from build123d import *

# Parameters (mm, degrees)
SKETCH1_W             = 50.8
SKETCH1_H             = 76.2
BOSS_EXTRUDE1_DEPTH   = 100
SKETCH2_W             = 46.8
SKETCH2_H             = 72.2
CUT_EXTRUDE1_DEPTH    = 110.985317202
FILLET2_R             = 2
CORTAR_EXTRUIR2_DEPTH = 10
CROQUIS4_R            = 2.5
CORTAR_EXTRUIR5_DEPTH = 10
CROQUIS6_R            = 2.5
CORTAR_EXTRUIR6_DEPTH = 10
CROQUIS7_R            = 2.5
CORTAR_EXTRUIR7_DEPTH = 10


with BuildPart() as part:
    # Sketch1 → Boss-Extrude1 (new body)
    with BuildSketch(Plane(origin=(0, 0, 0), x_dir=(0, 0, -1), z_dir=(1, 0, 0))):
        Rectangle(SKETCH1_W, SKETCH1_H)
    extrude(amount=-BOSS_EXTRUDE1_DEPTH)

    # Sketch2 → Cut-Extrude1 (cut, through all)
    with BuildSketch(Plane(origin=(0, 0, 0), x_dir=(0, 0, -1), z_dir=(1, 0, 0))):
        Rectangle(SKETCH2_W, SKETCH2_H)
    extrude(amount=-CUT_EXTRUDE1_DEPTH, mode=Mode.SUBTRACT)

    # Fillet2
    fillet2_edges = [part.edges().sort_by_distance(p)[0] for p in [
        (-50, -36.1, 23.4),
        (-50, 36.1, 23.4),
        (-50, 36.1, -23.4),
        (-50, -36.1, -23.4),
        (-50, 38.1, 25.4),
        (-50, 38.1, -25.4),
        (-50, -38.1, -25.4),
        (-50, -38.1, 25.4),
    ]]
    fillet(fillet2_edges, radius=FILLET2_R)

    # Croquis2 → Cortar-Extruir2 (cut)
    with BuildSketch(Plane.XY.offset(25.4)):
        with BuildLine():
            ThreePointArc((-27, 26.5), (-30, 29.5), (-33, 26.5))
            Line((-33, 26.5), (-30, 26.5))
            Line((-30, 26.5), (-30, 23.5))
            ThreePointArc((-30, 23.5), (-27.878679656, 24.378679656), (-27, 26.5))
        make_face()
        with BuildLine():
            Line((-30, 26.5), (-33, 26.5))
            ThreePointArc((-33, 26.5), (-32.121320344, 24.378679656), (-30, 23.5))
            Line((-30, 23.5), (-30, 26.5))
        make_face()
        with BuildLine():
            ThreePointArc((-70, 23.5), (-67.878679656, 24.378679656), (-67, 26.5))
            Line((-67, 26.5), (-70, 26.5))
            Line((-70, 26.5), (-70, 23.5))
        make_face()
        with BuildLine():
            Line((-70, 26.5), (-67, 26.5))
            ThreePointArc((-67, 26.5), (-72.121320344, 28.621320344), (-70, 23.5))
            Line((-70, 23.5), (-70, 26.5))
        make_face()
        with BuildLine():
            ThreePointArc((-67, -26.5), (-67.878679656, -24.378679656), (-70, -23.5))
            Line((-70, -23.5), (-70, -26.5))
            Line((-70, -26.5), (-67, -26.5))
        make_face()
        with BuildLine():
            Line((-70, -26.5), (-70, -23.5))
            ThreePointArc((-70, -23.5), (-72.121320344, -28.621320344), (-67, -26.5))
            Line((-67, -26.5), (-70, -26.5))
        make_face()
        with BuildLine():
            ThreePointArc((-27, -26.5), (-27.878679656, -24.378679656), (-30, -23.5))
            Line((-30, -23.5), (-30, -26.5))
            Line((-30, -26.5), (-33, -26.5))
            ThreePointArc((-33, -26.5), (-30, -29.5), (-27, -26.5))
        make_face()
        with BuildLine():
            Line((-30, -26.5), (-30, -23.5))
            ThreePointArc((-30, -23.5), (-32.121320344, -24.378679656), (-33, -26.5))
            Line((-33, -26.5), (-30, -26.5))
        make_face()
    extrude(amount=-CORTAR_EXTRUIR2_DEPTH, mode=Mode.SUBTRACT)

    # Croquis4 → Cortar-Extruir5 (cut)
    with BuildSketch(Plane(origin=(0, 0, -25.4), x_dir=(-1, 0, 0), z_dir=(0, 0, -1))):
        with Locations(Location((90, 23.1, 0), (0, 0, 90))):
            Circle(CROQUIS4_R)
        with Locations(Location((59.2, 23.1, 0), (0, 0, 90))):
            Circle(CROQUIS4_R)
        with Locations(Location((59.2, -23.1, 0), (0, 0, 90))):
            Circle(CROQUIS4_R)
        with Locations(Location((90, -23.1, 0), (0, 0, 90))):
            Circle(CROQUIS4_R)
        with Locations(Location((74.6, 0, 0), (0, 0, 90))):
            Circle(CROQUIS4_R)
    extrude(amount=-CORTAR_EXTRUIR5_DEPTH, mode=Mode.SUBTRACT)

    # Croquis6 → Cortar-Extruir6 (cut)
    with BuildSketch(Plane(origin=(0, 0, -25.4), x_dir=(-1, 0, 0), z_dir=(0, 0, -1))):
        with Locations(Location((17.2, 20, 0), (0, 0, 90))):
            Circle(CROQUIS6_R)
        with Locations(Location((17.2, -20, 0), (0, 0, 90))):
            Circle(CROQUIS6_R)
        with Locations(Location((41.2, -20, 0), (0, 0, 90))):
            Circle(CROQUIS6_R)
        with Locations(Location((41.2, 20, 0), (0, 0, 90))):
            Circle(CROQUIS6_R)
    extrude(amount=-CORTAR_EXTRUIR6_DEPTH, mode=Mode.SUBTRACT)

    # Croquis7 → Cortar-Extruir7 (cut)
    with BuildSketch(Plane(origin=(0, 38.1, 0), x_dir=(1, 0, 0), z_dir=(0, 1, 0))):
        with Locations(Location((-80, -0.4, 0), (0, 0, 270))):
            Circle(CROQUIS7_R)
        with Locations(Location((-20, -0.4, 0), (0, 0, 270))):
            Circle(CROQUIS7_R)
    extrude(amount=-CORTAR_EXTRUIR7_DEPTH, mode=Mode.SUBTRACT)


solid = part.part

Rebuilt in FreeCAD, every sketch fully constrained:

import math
import FreeCAD as App
import Part
import Sketcher

V = App.Vector
Q = App.Units.Quantity


def edges_at(feature, points):
    """Names of the edges that pass closest to the given points."""
    edges = feature.Shape.Edges
    near = lambda p: min(range(len(edges)), key=lambda i: edges[i].distToShape(Part.Vertex(*p))[0])
    return sorted({f"Edge{near(p) + 1}" for p in points})

doc = App.newDocument("Part")
params = doc.addObject("Spreadsheet::Sheet", "Params")
for row, (alias, value) in enumerate([
    ("sketch1_width", "76.2 mm"),
    ("sketch1_height", "50.8 mm"),
    ("pad1_length", "100 mm"),
    ("sketch2_width", "72.2 mm"),
    ("sketch2_height", "46.8 mm"),
    ("fillet_radius", "2 mm"),
    ("sketch3_radius", "3 mm"),
    ("pocket2_length", "10 mm"),
    ("sketch4_diameter", "5 mm"),
    ("pocket3_length", "10 mm"),
    ("sketch5_diameter", "5 mm"),
    ("pocket4_length", "10 mm"),
    ("sketch6_diameter", "5 mm"),
    ("pocket5_length", "10 mm"),
], start=1):
    params.set(f"A{row}", alias)
    params.set(f"B{row}", "=" + value)
    params.setAlias(f"B{row}", alias)

body = doc.addObject("PartDesign::Body", "Body")

# Sketch on YZ plane
sketch1 = body.newObject("Sketcher::SketchObject", "Sketch")
sketch1.AttachmentSupport = (doc.getObject("YZ_Plane"), [""])
sketch1.MapMode = "FlatFace"
sketch1.addGeometry([
    Part.LineSegment(V(38, 25, 0), V(-38, 25, 0)),
    Part.LineSegment(V(-38, 25, 0), V(-38, -25, 0)),
    Part.LineSegment(V(-38, -25, 0), V(38, -25, 0)),
    Part.LineSegment(V(38, -25, 0), V(38, 25, 0)),
], False)
sketch1.addConstraint([
    Sketcher.Constraint("Coincident", 0, 2, 1, 1),
    Sketcher.Constraint("Coincident", 1, 2, 2, 1),
    Sketcher.Constraint("Coincident", 2, 2, 3, 1),
    Sketcher.Constraint("Coincident", 3, 2, 0, 1),
    Sketcher.Constraint("Horizontal", 0),
    Sketcher.Constraint("Vertical", 1),
    Sketcher.Constraint("Horizontal", 2),
    Sketcher.Constraint("Vertical", 3),
    Sketcher.Constraint("Symmetric", 0, 2, 2, 2, -1, 1),
    Sketcher.Constraint("DistanceX", 0, 2, 0, 1, Q("76.2 mm")),
    Sketcher.Constraint("DistanceY", 1, 2, 1, 1, Q("50.8 mm")),
])
sketch1.setExpression("Constraints[9]", "Params.sketch1_width")
sketch1.setExpression("Constraints[10]", "Params.sketch1_height")
pad1 = body.newObject("PartDesign::Pad", "Pad")
pad1.Profile = sketch1
pad1.setExpression("Length", "Params.pad1_length")
pad1.Reversed = True

# Sketch on YZ plane
sketch2 = body.newObject("Sketcher::SketchObject", "Sketch001")
sketch2.AttachmentSupport = (doc.getObject("YZ_Plane"), [""])
sketch2.MapMode = "FlatFace"
sketch2.addGeometry([
    Part.LineSegment(V(36, 23, 0), V(-36, 23, 0)),
    Part.LineSegment(V(-36, 23, 0), V(-36, -23, 0)),
    Part.LineSegment(V(-36, -23, 0), V(36, -23, 0)),
    Part.LineSegment(V(36, -23, 0), V(36, 23, 0)),
], False)
sketch2.addConstraint([
    Sketcher.Constraint("Coincident", 0, 2, 1, 1),
    Sketcher.Constraint("Coincident", 1, 2, 2, 1),
    Sketcher.Constraint("Coincident", 2, 2, 3, 1),
    Sketcher.Constraint("Coincident", 3, 2, 0, 1),
    Sketcher.Constraint("Horizontal", 0),
    Sketcher.Constraint("Vertical", 1),
    Sketcher.Constraint("Horizontal", 2),
    Sketcher.Constraint("Vertical", 3),
    Sketcher.Constraint("Symmetric", 0, 2, 2, 2, -1, 1),
    Sketcher.Constraint("DistanceX", 0, 2, 0, 1, Q("72.2 mm")),
    Sketcher.Constraint("DistanceY", 1, 2, 1, 1, Q("46.8 mm")),
])
sketch2.setExpression("Constraints[9]", "Params.sketch2_width")
sketch2.setExpression("Constraints[10]", "Params.sketch2_height")
pocket1 = body.newObject("PartDesign::Pocket", "Pocket")
pocket1.Profile = sketch2
pocket1.Type = "ThroughAll"
doc.recompute()

fillet = body.newObject("PartDesign::Fillet", "Fillet")
fillet.Base = (pocket1, edges_at(pocket1, [
    (-50, -36.1, 23.4),
    (-50, 36.1, 23.4),
    (-50, 36.1, -23.4),
    (-50, -36.1, -23.4),
    (-50, 38.1, 25.4),
    (-50, 38.1, -25.4),
    (-50, -38.1, -25.4),
    (-50, -38.1, 25.4),
]))
fillet.setExpression("Radius", "Params.fillet_radius")

# Sketch on XY plane
sketch3 = body.newObject("Sketcher::SketchObject", "Sketch002")
sketch3.AttachmentSupport = (doc.getObject("XY_Plane"), [""])
sketch3.MapMode = "FlatFace"
sketch3.AttachmentOffset = App.Placement(V(0, 0, 25.4), App.Rotation())
sketch3.addGeometry([
    Part.ArcOfCircle(Part.Circle(V(-30, 26.5, 0), V(0, 0, 1), 3), math.radians(0), math.radians(180)),  # 0
    Part.ArcOfCircle(Part.Circle(V(-30, 26.5, 0), V(0, 0, 1), 3), math.radians(180), math.radians(270)),  # 1
    Part.ArcOfCircle(Part.Circle(V(-30, 26.5, 0), V(0, 0, 1), 3), math.radians(-90), math.radians(0)),  # 2
    Part.ArcOfCircle(Part.Circle(V(-70, 26.5, 0), V(0, 0, 1), 3), math.radians(-90), math.radians(0)),  # 3
    Part.ArcOfCircle(Part.Circle(V(-70, 26.5, 0), V(0, 0, 1), 3), math.radians(0), math.radians(270)),  # 4
    Part.ArcOfCircle(Part.Circle(V(-70, -26.5, 0), V(0, 0, 1), 3), math.radians(0), math.radians(90)),  # 5
    Part.ArcOfCircle(Part.Circle(V(-70, -26.5, 0), V(0, 0, 1), 3), math.radians(90), math.radians(360)),  # 6
    Part.ArcOfCircle(Part.Circle(V(-30, -26.5, 0), V(0, 0, 1), 3), math.radians(0), math.radians(90)),  # 7
    Part.ArcOfCircle(Part.Circle(V(-30, -26.5, 0), V(0, 0, 1), 3), math.radians(90), math.radians(180)),  # 8
    Part.ArcOfCircle(Part.Circle(V(-30, -26.5, 0), V(0, 0, 1), 3), math.radians(180), math.radians(360)),  # 9
], False)
sketch3.addConstraint([
    Sketcher.Constraint("Tangent", 0, 2, 1, 1),
    Sketcher.Constraint("Tangent", 1, 2, 2, 1),
    Sketcher.Constraint("Tangent", 2, 2, 0, 1),
    Sketcher.Constraint("Tangent", 3, 1, 4, 2),
    Sketcher.Constraint("Coincident", 4, 1, 3, 2),
    Sketcher.Constraint("Tangent", 5, 1, 6, 2),
    Sketcher.Constraint("Coincident", 6, 1, 5, 2),
    Sketcher.Constraint("Tangent", 7, 2, 8, 1),
    Sketcher.Constraint("Tangent", 8, 2, 9, 1),
    Sketcher.Constraint("Tangent", 9, 2, 7, 1),
    Sketcher.Constraint("Equal", 2, 3),
    Sketcher.Constraint("Equal", 4, 5),
    Sketcher.Constraint("Equal", 6, 7),
    Sketcher.Constraint("Symmetric", 3, 3, 5, 3, -1),
    Sketcher.Constraint("Symmetric", 0, 3, 7, 3, -1),
    Sketcher.Constraint("Horizontal", 2, 3, 3, 3),
    Sketcher.Constraint("Horizontal", 4, 3, 0, 2),
    Sketcher.Constraint("Horizontal", 0, 2, 2, 2),
    Sketcher.Constraint("Horizontal", 2, 2, 4, 1),
    Sketcher.Constraint("Horizontal", 9, 3, 5, 1),
    Sketcher.Constraint("Horizontal", 5, 1, 8, 2),
    Sketcher.Constraint("Horizontal", 8, 2, 9, 2),
    Sketcher.Constraint("Vertical", 9, 3, 1, 2),
    Sketcher.Constraint("Vertical", 6, 3, 3, 1),
    Sketcher.Constraint("Vertical", 3, 1, 6, 1),
    Sketcher.Constraint("Vertical", 1, 2, 7, 2),
    Sketcher.Constraint("Radius", 0, Q("3 mm")),
    Sketcher.Constraint("DistanceX", 0, 3, -1, 1, Q("30 mm")),
    Sketcher.Constraint("DistanceX", 3, 3, -1, 1, Q("70 mm")),
    Sketcher.Constraint("DistanceY", 5, 3, 3, 3, Q("53 mm")),
])
sketch3.setExpression("Constraints[26]", "Params.sketch3_radius")
pocket2 = body.newObject("PartDesign::Pocket", "Pocket001")
pocket2.Profile = sketch3
pocket2.setExpression("Length", "Params.pocket2_length")

# Sketch on XY plane
sketch4 = body.newObject("Sketcher::SketchObject", "Sketch003")
sketch4.AttachmentSupport = (doc.getObject("XY_Plane"), [""])
sketch4.MapMode = "FlatFace"
sketch4.AttachmentOffset = App.Placement(V(0, 0, -25.4), App.Rotation())
sketch4.addGeometry([
    Part.Circle(V(-90, 23.1, 0), V(0, 0, 1), 2.5),  # 0
    Part.Circle(V(-59.2, 23.1, 0), V(0, 0, 1), 2.5),  # 1
    Part.Circle(V(-59.2, -23.1, 0), V(0, 0, 1), 2.5),  # 2
    Part.Circle(V(-90, -23.1, 0), V(0, 0, 1), 2.5),  # 3
    Part.Circle(V(-74.6, 0, 0), V(0, 0, 1), 2.5),  # 4
], False)
sketch4.addConstraint([
    Sketcher.Constraint("Equal", 0, 1),
    Sketcher.Constraint("Equal", 1, 2),
    Sketcher.Constraint("Equal", 2, 3),
    Sketcher.Constraint("Equal", 3, 4),
    Sketcher.Constraint("Symmetric", 1, 3, 2, 3, -1),
    Sketcher.Constraint("Symmetric", 0, 3, 3, 3, -1),
    Sketcher.Constraint("PointOnObject", 4, 3, -1),
    Sketcher.Constraint("Horizontal", 0, 3, 1, 3),
    Sketcher.Constraint("Diameter", 0, Q("5 mm")),
    Sketcher.Constraint("DistanceX", 0, 3, -1, 1, Q("90 mm")),
    Sketcher.Constraint("DistanceY", -1, 1, 0, 3, Q("23.1 mm")),
    Sketcher.Constraint("DistanceX", 1, 3, -1, 1, Q("59.2 mm")),
    Sketcher.Constraint("DistanceX", 4, 3, -1, 1, Q("74.6 mm")),
])
sketch4.setExpression("Constraints[8]", "Params.sketch4_diameter")
pocket3 = body.newObject("PartDesign::Pocket", "Pocket002")
pocket3.Profile = sketch4
pocket3.setExpression("Length", "Params.pocket3_length")
pocket3.Reversed = True

# Sketch on XY plane
sketch5 = body.newObject("Sketcher::SketchObject", "Sketch004")
sketch5.AttachmentSupport = (doc.getObject("XY_Plane"), [""])
sketch5.MapMode = "FlatFace"
sketch5.AttachmentOffset = App.Placement(V(0, 0, -25.4), App.Rotation())
sketch5.addGeometry([
    Part.Circle(V(-17.2, 20, 0), V(0, 0, 1), 2.5),
    Part.Circle(V(-17.2, -20, 0), V(0, 0, 1), 2.5),
    Part.Circle(V(-41.2, -20, 0), V(0, 0, 1), 2.5),
    Part.Circle(V(-41.2, 20, 0), V(0, 0, 1), 2.5),
], False)
sketch5.addConstraint([
    Sketcher.Constraint("Equal", 0, 1),
    Sketcher.Constraint("Equal", 1, 2),
    Sketcher.Constraint("Equal", 2, 3),
    Sketcher.Constraint("Symmetric", 0, 3, 1, 3, -1),
    Sketcher.Constraint("Symmetric", 2, 3, 3, 3, -1),
    Sketcher.Constraint("Horizontal", 1, 3, 2, 3),
    Sketcher.Constraint("Diameter", 0, Q("5 mm")),
    Sketcher.Constraint("DistanceY", -1, 1, 0, 3, Q("20 mm")),
    Sketcher.Constraint("DistanceX", 2, 3, 1, 3, Q("24 mm")),
    Sketcher.Constraint("DistanceX", 0, 3, -1, 1, Q("17.2 mm")),
])
sketch5.setExpression("Constraints[6]", "Params.sketch5_diameter")
pocket4 = body.newObject("PartDesign::Pocket", "Pocket003")
pocket4.Profile = sketch5
pocket4.setExpression("Length", "Params.pocket4_length")
pocket4.Reversed = True

# Sketch on XZ plane
sketch6 = body.newObject("Sketcher::SketchObject", "Sketch005")
sketch6.AttachmentSupport = (doc.getObject("XZ_Plane"), [""])
sketch6.MapMode = "FlatFace"
sketch6.AttachmentOffset = App.Placement(V(0, 0, -38.1), App.Rotation())
sketch6.addGeometry([
    Part.Circle(V(-80, 0.4, 0), V(0, 0, 1), 2.5),
    Part.Circle(V(-20, 0.4, 0), V(0, 0, 1), 2.5),
], False)
sketch6.addConstraint([
    Sketcher.Constraint("Equal", 0, 1),
    Sketcher.Constraint("Horizontal", 0, 3, 1, 3),
    Sketcher.Constraint("Diameter", 0, Q("5 mm")),
    Sketcher.Constraint("DistanceX", 0, 3, -1, 1, Q("80 mm")),
    Sketcher.Constraint("DistanceX", 1, 3, -1, 1, Q("20 mm")),
    Sketcher.Constraint("DistanceY", -1, 1, 0, 3, Q("0.4 mm")),
])
sketch6.setExpression("Constraints[2]", "Params.sketch6_diameter")
pocket5 = body.newObject("PartDesign::Pocket", "Pocket004")
pocket5.Profile = sketch6
pocket5.setExpression("Length", "Params.pocket5_length")
pocket5.Reversed = True

doc.recompute()
